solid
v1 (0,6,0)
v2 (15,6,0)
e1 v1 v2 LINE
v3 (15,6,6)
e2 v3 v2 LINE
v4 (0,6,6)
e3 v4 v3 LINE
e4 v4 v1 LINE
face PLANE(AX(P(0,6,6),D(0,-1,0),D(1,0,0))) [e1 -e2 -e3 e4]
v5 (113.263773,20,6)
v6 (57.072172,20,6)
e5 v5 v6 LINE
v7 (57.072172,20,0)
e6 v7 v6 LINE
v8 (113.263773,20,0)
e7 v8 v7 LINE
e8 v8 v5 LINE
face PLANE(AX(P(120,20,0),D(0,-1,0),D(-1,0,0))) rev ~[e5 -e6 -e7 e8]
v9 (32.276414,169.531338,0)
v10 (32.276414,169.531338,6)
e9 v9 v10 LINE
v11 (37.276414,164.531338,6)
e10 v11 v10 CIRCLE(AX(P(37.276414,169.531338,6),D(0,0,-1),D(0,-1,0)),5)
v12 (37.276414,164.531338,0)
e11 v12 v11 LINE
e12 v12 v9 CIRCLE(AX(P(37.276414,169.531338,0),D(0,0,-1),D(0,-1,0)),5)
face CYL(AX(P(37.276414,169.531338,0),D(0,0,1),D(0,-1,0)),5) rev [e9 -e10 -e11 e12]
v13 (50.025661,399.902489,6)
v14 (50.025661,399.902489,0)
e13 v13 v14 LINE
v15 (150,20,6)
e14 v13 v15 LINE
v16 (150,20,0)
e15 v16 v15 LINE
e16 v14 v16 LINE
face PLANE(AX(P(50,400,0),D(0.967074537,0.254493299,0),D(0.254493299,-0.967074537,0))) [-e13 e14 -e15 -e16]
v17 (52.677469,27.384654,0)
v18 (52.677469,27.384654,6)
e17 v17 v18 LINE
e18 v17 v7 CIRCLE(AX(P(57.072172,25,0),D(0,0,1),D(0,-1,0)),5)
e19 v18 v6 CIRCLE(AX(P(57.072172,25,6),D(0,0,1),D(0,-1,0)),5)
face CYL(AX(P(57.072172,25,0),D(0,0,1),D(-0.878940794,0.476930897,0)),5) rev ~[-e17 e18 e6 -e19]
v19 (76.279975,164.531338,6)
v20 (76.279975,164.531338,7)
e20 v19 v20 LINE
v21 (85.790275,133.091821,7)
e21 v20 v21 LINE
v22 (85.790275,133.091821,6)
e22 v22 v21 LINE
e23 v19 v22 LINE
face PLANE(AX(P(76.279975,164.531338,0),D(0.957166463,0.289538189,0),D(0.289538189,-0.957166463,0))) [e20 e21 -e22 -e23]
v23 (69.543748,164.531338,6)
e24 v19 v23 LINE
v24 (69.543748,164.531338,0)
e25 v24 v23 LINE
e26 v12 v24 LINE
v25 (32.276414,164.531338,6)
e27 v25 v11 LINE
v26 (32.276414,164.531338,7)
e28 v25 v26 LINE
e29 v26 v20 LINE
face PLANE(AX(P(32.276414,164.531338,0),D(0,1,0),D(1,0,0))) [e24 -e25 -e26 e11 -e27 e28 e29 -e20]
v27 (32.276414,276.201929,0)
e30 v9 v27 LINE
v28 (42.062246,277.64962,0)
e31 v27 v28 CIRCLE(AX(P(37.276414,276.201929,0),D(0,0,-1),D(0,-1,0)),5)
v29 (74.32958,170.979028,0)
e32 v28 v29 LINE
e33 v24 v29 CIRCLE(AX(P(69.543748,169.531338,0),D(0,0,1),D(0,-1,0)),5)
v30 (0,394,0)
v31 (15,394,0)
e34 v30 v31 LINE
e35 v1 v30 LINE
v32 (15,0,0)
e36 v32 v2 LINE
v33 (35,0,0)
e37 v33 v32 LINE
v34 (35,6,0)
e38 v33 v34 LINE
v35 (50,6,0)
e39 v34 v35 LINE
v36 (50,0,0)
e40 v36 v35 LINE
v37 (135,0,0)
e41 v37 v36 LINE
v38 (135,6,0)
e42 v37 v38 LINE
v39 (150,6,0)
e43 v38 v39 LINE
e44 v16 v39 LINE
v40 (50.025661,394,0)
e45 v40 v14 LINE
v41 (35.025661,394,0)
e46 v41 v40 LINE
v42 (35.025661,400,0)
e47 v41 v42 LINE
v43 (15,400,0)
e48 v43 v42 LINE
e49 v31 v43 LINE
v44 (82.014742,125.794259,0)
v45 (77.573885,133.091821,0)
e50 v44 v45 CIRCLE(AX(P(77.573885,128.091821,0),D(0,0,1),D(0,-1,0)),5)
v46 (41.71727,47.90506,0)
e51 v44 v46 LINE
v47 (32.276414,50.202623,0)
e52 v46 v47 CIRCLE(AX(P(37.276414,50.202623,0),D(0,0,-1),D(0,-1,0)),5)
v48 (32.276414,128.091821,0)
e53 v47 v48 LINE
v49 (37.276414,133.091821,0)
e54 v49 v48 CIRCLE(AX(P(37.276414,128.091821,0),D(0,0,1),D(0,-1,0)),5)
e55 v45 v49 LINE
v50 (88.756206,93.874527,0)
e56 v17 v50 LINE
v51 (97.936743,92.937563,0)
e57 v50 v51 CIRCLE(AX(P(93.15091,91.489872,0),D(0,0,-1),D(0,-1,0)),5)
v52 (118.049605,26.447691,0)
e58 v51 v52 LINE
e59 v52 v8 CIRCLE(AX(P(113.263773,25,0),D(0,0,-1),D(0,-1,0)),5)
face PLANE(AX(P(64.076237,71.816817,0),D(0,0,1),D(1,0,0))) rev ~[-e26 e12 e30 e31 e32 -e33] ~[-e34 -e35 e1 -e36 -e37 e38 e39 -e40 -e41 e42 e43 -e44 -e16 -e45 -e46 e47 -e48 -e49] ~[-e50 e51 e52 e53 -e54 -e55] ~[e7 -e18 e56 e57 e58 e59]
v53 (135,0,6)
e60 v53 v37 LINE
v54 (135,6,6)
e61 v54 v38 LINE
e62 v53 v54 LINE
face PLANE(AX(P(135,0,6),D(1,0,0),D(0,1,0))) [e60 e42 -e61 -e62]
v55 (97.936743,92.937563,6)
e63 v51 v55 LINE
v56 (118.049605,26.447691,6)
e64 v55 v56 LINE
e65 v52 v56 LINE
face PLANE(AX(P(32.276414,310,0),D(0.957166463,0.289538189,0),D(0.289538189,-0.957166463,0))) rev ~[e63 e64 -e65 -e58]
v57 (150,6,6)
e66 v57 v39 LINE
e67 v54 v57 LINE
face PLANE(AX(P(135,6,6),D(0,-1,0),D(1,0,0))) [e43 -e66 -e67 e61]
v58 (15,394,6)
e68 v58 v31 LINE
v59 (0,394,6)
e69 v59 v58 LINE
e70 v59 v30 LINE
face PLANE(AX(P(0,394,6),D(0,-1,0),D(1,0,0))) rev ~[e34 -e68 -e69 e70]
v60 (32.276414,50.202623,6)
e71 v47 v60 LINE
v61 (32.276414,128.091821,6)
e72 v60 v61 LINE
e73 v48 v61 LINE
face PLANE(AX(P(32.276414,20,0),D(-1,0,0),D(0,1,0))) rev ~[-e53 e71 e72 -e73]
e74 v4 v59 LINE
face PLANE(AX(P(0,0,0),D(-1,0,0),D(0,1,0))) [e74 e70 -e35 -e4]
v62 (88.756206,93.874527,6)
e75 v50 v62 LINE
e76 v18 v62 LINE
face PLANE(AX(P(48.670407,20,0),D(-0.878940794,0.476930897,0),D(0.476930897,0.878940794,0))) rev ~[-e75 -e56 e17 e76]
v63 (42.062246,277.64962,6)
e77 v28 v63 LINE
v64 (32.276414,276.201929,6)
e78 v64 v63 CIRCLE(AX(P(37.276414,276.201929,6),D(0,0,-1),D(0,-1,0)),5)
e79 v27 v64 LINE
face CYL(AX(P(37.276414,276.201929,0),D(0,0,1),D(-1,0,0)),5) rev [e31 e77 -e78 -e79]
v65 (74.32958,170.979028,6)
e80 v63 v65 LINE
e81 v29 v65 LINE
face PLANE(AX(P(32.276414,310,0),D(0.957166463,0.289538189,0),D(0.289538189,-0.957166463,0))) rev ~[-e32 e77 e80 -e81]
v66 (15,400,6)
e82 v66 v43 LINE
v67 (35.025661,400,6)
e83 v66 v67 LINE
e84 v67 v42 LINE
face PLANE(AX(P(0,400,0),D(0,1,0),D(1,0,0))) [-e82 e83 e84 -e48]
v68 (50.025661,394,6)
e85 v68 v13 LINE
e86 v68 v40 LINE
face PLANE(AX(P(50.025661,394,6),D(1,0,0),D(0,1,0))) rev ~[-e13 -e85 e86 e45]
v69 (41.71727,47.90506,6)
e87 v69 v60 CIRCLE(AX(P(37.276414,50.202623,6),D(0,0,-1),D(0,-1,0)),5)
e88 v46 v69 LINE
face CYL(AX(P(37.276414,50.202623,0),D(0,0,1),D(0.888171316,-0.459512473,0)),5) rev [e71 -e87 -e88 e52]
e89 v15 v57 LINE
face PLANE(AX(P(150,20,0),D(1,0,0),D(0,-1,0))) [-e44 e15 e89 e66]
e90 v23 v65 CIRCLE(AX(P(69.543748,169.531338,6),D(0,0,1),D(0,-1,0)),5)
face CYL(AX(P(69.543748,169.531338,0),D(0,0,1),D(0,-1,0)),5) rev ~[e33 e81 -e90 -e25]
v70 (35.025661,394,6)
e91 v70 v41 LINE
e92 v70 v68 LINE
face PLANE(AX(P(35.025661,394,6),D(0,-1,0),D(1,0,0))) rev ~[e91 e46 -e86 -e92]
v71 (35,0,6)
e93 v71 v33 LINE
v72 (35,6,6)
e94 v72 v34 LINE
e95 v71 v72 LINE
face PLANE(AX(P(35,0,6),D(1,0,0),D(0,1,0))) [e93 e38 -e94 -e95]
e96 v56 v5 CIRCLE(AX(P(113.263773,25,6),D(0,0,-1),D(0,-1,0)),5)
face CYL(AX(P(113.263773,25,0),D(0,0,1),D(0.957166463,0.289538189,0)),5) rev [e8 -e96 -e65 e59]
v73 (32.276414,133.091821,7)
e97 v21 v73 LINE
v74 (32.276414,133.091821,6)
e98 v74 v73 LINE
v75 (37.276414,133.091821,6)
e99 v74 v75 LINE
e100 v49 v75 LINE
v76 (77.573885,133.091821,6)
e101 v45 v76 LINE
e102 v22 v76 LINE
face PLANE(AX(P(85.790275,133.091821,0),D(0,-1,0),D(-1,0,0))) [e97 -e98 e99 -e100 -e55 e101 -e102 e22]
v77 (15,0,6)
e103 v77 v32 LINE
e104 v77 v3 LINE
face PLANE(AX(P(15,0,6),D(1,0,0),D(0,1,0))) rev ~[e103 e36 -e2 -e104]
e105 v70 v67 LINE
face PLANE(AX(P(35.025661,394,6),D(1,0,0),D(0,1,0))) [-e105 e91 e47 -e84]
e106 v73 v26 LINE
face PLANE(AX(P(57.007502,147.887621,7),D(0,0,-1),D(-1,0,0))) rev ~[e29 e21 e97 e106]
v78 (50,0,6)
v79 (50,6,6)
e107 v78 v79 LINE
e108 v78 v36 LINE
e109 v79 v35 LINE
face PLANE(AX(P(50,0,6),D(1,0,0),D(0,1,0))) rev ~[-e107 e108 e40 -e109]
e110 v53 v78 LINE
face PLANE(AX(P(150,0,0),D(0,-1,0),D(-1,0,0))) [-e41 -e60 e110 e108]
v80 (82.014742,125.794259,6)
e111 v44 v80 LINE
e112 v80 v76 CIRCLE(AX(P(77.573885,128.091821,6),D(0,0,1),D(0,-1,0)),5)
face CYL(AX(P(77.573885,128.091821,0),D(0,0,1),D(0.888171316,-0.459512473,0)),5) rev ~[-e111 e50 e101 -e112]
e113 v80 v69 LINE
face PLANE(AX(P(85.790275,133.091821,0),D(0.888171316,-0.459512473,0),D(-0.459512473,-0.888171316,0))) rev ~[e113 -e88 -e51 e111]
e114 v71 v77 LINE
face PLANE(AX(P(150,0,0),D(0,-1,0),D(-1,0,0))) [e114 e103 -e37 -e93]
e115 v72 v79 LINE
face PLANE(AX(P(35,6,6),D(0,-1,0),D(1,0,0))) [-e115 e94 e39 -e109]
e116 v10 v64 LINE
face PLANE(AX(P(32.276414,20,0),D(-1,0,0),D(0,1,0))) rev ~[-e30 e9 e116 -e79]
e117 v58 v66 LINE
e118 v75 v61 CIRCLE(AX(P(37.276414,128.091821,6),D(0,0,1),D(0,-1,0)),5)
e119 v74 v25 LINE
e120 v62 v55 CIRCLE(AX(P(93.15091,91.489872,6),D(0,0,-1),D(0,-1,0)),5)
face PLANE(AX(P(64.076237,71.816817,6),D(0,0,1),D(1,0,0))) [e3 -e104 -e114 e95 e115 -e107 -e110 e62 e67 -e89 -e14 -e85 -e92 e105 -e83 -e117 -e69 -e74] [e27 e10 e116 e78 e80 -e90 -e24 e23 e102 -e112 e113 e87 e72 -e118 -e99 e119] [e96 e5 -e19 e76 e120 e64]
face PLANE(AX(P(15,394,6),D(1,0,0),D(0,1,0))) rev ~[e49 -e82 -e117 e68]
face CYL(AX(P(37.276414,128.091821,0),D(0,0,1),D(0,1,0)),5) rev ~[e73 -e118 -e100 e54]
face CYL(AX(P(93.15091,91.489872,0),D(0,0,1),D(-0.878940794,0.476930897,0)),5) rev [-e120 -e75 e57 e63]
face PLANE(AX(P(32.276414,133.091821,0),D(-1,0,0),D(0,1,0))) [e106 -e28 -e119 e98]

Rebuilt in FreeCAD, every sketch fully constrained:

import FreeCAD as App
import Part
import Sketcher
from FreeCAD import Vector
Q = App.Units.Quantity


def edges_at(feature, points):
    """Names of the edges that pass closest to the given points."""
    edges = feature.Shape.Edges
    near = lambda p: min(range(len(edges)), key=lambda i: edges[i].distToShape(Part.Vertex(*p))[0])
    return sorted({f"Edge{near(p) + 1}" for p in points})

doc = App.newDocument("Part")
params = doc.addObject("Spreadsheet::Sheet", "Params")
for row, (alias, value) in enumerate([
    ("sketch1_width", "150 mm"),
    ("sketch1_width2", "50 mm"),
    ("sketch1_height", "400 mm"),
    ("sketch1_height2", "20 mm"),
    ("pad1_length", "6 mm"),
    ("sketch2_height", "290 mm"),
    ("fillet_radius", "5 mm"),
    ("pad2_length", "7 mm"),
    ("pad3_length", "6 mm"),
    ("fillet2_radius", "5 mm"),
    ("sketch5_width", "15 mm"),
    ("sketch5_height", "6 mm"),
    ("sketch6_width", "15 mm"),
    ("sketch6_height", "6 mm"),
], start=1):
    params.set(f"A{row}", alias)
    params.set(f"B{row}", "=" + value)
    params.setAlias(f"B{row}", alias)

body = doc.addObject("PartDesign::Body", "Body")

# Sketch on XY plane
sketch1 = body.newObject("Sketcher::SketchObject", "Sketch")
sketch1.AttachmentSupport = (doc.getObject("XY_Plane"), [""])
sketch1.MapMode = "FlatFace"
sketch1.addGeometry(Part.LineSegment(Vector(0, 400, 0), Vector(0, 0, 0)), False)
sketch1.addGeometry(Part.LineSegment(Vector(0, 0, 0), Vector(150, 0, 0)), False)
sketch1.addGeometry(Part.LineSegment(Vector(150, 0, 0), Vector(150, 20, 0)), False)
sketch1.addGeometry(Part.LineSegment(Vector(150, 20, 0), Vector(50, 400, 0)), False)
sketch1.addGeometry(Part.LineSegment(Vector(50, 400, 0), Vector(0, 400, 0)), False)
sketch1.addConstraint(Sketcher.Constraint("Coincident", 0, 2, 1, 1))
sketch1.addConstraint(Sketcher.Constraint("Coincident", 1, 2, 2, 1))
sketch1.addConstraint(Sketcher.Constraint("Coincident", 2, 2, 3, 1))
sketch1.addConstraint(Sketcher.Constraint("Coincident", 3, 2, 4, 1))
sketch1.addConstraint(Sketcher.Constraint("Coincident", 4, 2, 0, 1))
sketch1.addConstraint(Sketcher.Constraint("Vertical", 0))
sketch1.addConstraint(Sketcher.Constraint("Horizontal", 1))
sketch1.addConstraint(Sketcher.Constraint("Vertical", 2))
sketch1.addConstraint(Sketcher.Constraint("Horizontal", 4))
sketch1.addConstraint(Sketcher.Constraint("Coincident", 0, 2, -1, 1))
sketch1.addConstraint(Sketcher.Constraint("DistanceX", 1, 1, 1, 2, Q("150 mm")))
sketch1.addConstraint(Sketcher.Constraint("DistanceX", 4, 2, 4, 1, Q("50 mm")))
sketch1.addConstraint(Sketcher.Constraint("DistanceY", 0, 2, 0, 1, Q("400 mm")))
sketch1.addConstraint(Sketcher.Constraint("DistanceY", 2, 1, 2, 2, Q("20 mm")))
sketch1.setExpression("Constraints[10]", "Params.sketch1_width")
sketch1.setExpression("Constraints[11]", "Params.sketch1_width2")
sketch1.setExpression("Constraints[12]", "Params.sketch1_height")
sketch1.setExpression("Constraints[13]", "Params.sketch1_height2")
pad1 = body.newObject("PartDesign::Pad", "Pad")
pad1.Profile = sketch1
pad1.setExpression("Length", "Params.pad1_length")

# Sketch on XY plane
sketch2 = body.newObject("Sketcher::SketchObject", "Sketch001")
sketch2.AttachmentSupport = (doc.getObject("XY_Plane"), [""])
sketch2.MapMode = "FlatFace"
sketch2.addGeometry(Part.LineSegment(Vector(32, 20, 0), Vector(32, 310, 0)), False)
sketch2.addGeometry(Part.LineSegment(Vector(32, 310, 0), Vector(120, 20, 0)), False)
sketch2.addGeometry(Part.LineSegment(Vector(120, 20, 0), Vector(32, 20, 0)), False)
sketch2.addConstraint(Sketcher.Constraint("Coincident", 0, 2, 1, 1))
sketch2.addConstraint(Sketcher.Constraint("Coincident", 1, 2, 2, 1))
sketch2.addConstraint(Sketcher.Constraint("Coincident", 2, 2, 0, 1))
sketch2.addConstraint(Sketcher.Constraint("Vertical", 0))
sketch2.addConstraint(Sketcher.Constraint("Horizontal", 2))
sketch2.addConstraint(Sketcher.Constraint("DistanceY", 0, 1, 0, 2, Q("290 mm")))
sketch2.addConstraint(Sketcher.Constraint("DistanceY", -1, 1, 0, 2, Q("310 mm")))
sketch2.addConstraint(Sketcher.Constraint("DistanceX", -1, 1, 1, 2, Q("120 mm")))
sketch2.addConstraint(Sketcher.Constraint("DistanceX", 2, 2, 2, 1, Q("87.723586 mm")))
sketch2.setExpression("Constraints[5]", "Params.sketch2_height")
pocket1 = body.newObject("PartDesign::Pocket", "Pocket")
pocket1.Profile = sketch2
pocket1.Type = "ThroughAll"
pocket1.Reversed = True
doc.recompute()

fillet = body.newObject("PartDesign::Fillet", "Fillet")
fillet.Base = (pocket1, edges_at(pocket1, [(32.276, 20, 3), (120, 20, 3), (32.276, 310, 3)]))
fillet.setExpression("Radius", "Params.fillet_radius")

# Sketch on XY plane
sketch3 = body.newObject("Sketcher::SketchObject", "Sketch002")
sketch3.AttachmentSupport = (doc.getObject("XY_Plane"), [""])
sketch3.MapMode = "FlatFace"
sketch3.addGeometry(Part.LineSegment(Vector(86, 133, 0), Vector(32, 133, 0)), False)
sketch3.addGeometry(Part.LineSegment(Vector(32, 133, 0), Vector(32, 165, 0)), False)
sketch3.addGeometry(Part.LineSegment(Vector(32, 165, 0), Vector(76, 165, 0)), False)
sketch3.addGeometry(Part.LineSegment(Vector(76, 165, 0), Vector(86, 133, 0)), False)
sketch3.addConstraint(Sketcher.Constraint("Coincident", 0, 2, 1, 1))
sketch3.addConstraint(Sketcher.Constraint("Coincident", 1, 2, 2, 1))
sketch3.addConstraint(Sketcher.Constraint("Coincident", 2, 2, 3, 1))
sketch3.addConstraint(Sketcher.Constraint("Coincident", 3, 2, 0, 1))
sketch3.addConstraint(Sketcher.Constraint("Horizontal", 0))
sketch3.addConstraint(Sketcher.Constraint("Vertical", 1))
sketch3.addConstraint(Sketcher.Constraint("Horizontal", 2))
sketch3.addConstraint(Sketcher.Constraint("DistanceX", 0, 2, 0, 1, Q("53.513862 mm")))
sketch3.addConstraint(Sketcher.Constraint("DistanceX", 2, 1, 2, 2, Q("44.003561 mm")))
sketch3.addConstraint(Sketcher.Constraint("DistanceY", 1, 1, 1, 2, Q("31.439517 mm")))
sketch3.addConstraint(Sketcher.Constraint("DistanceY", -1, 1, 0, 2, Q("133.091821 mm")))
sketch3.addConstraint(Sketcher.Constraint("DistanceX", -1, 1, 0, 2, Q("32.276414 mm")))
pad2 = body.newObject("PartDesign::Pad", "Pad001")
pad2.Profile = sketch3
pad2.setExpression("Length", "Params.pad2_length")

# Sketch on XY plane
sketch4 = body.newObject("Sketcher::SketchObject", "Sketch003")
sketch4.AttachmentSupport = (doc.getObject("XY_Plane"), [""])
sketch4.MapMode = "FlatFace"
sketch4.addGeometry(Part.LineSegment(Vector(32, 30, 0), Vector(86, 133, 0)), False)
sketch4.addGeometry(Part.LineSegment(Vector(86, 133, 0), Vector(94, 104, 0)), False)
sketch4.addGeometry(Part.LineSegment(Vector(94, 104, 0), Vector(49, 20, 0)), False)
sketch4.addGeometry(Part.LineSegment(Vector(49, 20, 0), Vector(28, 20, 0)), False)
sketch4.addGeometry(Part.LineSegment(Vector(28, 20, 0), Vector(32, 30, 0)), False)
sketch4.addConstraint(Sketcher.Constraint("Coincident", 0, 2, 1, 1))
sketch4.addConstraint(Sketcher.Constraint("Coincident", 1, 2, 2, 1))
sketch4.addConstraint(Sketcher.Constraint("Coincident", 2, 2, 3, 1))
sketch4.addConstraint(Sketcher.Constraint("Coincident", 3, 2, 4, 1))
sketch4.addConstraint(Sketcher.Constraint("Coincident", 4, 2, 0, 1))
sketch4.addConstraint(Sketcher.Constraint("Horizontal", 3))
sketch4.addConstraint(Sketcher.Constraint("DistanceY", -1, 1, 2, 2, Q("20 mm")))
sketch4.addConstraint(Sketcher.Constraint("DistanceX", 3, 2, 3, 1, Q("21.075692 mm")))
sketch4.addConstraint(Sketcher.Constraint("DistanceX", 3, 2, 4, 2, Q("4.681699 mm")))
sketch4.addConstraint(Sketcher.Constraint("Distance", 0, Q("116.457909 mm")))
sketch4.addConstraint(Sketcher.Constraint("Distance", 2, Q("96.027191 mm")))
sketch4.addConstraint(Sketcher.Constraint("DistanceY", -1, 1, 0, 2, Q("133.091821 mm")))
sketch4.addConstraint(Sketcher.Constraint("DistanceX", -1, 1, 1, 2, Q("94.468741 mm")))
sketch4.addConstraint(Sketcher.Constraint("DistanceX", 2, 2, 0, 2, Q("37.119869 mm")))
sketch4.addConstraint(Sketcher.Constraint("DistanceY", 4, 2, 1, 2, Q("74.744969 mm")))
pad3 = body.newObject("PartDesign::Pad", "Pad002")
pad3.Profile = sketch4
pad3.setExpression("Length", "Params.pad3_length")
doc.recompute()

fillet2 = body.newObject("PartDesign::Fillet", "Fillet001")
fillet2.Base = (pad3, edges_at(pad3, [
    (32.276, 133.092, 3),
    (32.276, 164.531, 3),
    (85.79, 133.092, 3),
    (76.28, 164.531, 3),
    (94.469, 104.402, 3),
    (32.276, 29.657, 3),
    (48.67, 20, 3),
]))
fillet2.setExpression("Radius", "Params.fillet2_radius")

# Sketch on XY plane
sketch5 = body.newObject("Sketcher::SketchObject", "Sketch004")
sketch5.AttachmentSupport = (doc.getObject("XY_Plane"), [""])
sketch5.MapMode = "FlatFace"
sketch5.AttachmentOffset = App.Placement(Vector(0, 0, 6), App.Rotation())
sketch5.addGeometry(Part.LineSegment(Vector(0, 400, 0), Vector(0, 394, 0)), False)
sketch5.addGeometry(Part.LineSegment(Vector(0, 394, 0), Vector(15, 394, 0)), False)
sketch5.addGeometry(Part.LineSegment(Vector(15, 394, 0), Vector(15, 400, 0)), False)
sketch5.addGeometry(Part.LineSegment(Vector(15, 400, 0), Vector(0, 400, 0)), False)
sketch5.addGeometry(Part.LineSegment(Vector(35, 400, 0), Vector(35, 394, 0)), False)
sketch5.addGeometry(Part.LineSegment(Vector(35, 394, 0), Vector(50, 394, 0)), False)
sketch5.addGeometry(Part.LineSegment(Vector(50, 394, 0), Vector(50, 400, 0)), False)
sketch5.addGeometry(Part.LineSegment(Vector(50, 400, 0), Vector(35, 400, 0)), False)
sketch5.addConstraint(Sketcher.Constraint("Coincident", 0, 2, 1, 1))
sketch5.addConstraint(Sketcher.Constraint("Coincident", 1, 2, 2, 1))
sketch5.addConstraint(Sketcher.Constraint("Coincident", 2, 2, 3, 1))
sketch5.addConstraint(Sketcher.Constraint("Coincident", 3, 2, 0, 1))
sketch5.addConstraint(Sketcher.Constraint("Coincident", 4, 2, 5, 1))
sketch5.addConstraint(Sketcher.Constraint("Coincident", 5, 2, 6, 1))
sketch5.addConstraint(Sketcher.Constraint("Coincident", 6, 2, 7, 1))
sketch5.addConstraint(Sketcher.Constraint("Coincident", 7, 2, 4, 1))
sketch5.addConstraint(Sketcher.Constraint("Vertical", 0))
sketch5.addConstraint(Sketcher.Constraint("Horizontal", 1))
sketch5.addConstraint(Sketcher.Constraint("Vertical", 2))
sketch5.addConstraint(Sketcher.Constraint("Horizontal", 3))
sketch5.addConstraint(Sketcher.Constraint("Vertical", 4))
sketch5.addConstraint(Sketcher.Constraint("Horizontal", 5))
sketch5.addConstraint(Sketcher.Constraint("Vertical", 6))
sketch5.addConstraint(Sketcher.Constraint("Horizontal", 7))
sketch5.addConstraint(Sketcher.Constraint("PointOnObject", 0, 2, -2))
sketch5.addConstraint(Sketcher.Constraint("Horizontal", 1, 2, 4, 2))
sketch5.addConstraint(Sketcher.Constraint("Horizontal", 3, 2, 6, 2))
sketch5.addConstraint(Sketcher.Constraint("Equal", 3, 5))
sketch5.addConstraint(Sketcher.Constraint("DistanceX", 1, 1, 1, 2, Q("15 mm")))
sketch5.addConstraint(Sketcher.Constraint("DistanceY", 0, 2, 0, 1, Q("6 mm")))
sketch5.addConstraint(Sketcher.Constraint("DistanceY", -1, 1, 0, 2, Q("394 mm")))
sketch5.addConstraint(Sketcher.Constraint("DistanceX", -1, 1, 4, 2, Q("35.025661 mm")))
sketch5.setExpression("Constraints[20]", "Params.sketch5_width")
sketch5.setExpression("Constraints[21]", "Params.sketch5_height")
pocket2 = body.newObject("PartDesign::Pocket", "Pocket001")
pocket2.Profile = sketch5
pocket2.Type = "ThroughAll"

# Sketch on XY plane
sketch6 = body.newObject("Sketcher::SketchObject", "Sketch005")
sketch6.AttachmentSupport = (doc.getObject("XY_Plane"), [""])
sketch6.MapMode = "FlatFace"
sketch6.AttachmentOffset = App.Placement(Vector(0, 0, 6), App.Rotation())
sketch6.addGeometry(Part.LineSegment(Vector(0, 6, 0), Vector(0, 0, 0)), False)
sketch6.addGeometry(Part.LineSegment(Vector(0, 0, 0), Vector(15, 0, 0)), False)
sketch6.addGeometry(Part.LineSegment(Vector(15, 0, 0), Vector(15, 6, 0)), False)
sketch6.addGeometry(Part.LineSegment(Vector(15, 6, 0), Vector(0, 6, 0)), False)
sketch6.addGeometry(Part.LineSegment(Vector(35, 6, 0), Vector(35, 0, 0)), False)
sketch6.addGeometry(Part.LineSegment(Vector(35, 0, 0), Vector(50, 0, 0)), False)
sketch6.addGeometry(Part.LineSegment(Vector(50, 0, 0), Vector(50, 6, 0)), False)
sketch6.addGeometry(Part.LineSegment(Vector(50, 6, 0), Vector(35, 6, 0)), False)
sketch6.addGeometry(Part.LineSegment(Vector(135, 6, 0), Vector(135, 0, 0)), False)
sketch6.addGeometry(Part.LineSegment(Vector(135, 0, 0), Vector(150, 0, 0)), False)
sketch6.addGeometry(Part.LineSegment(Vector(150, 0, 0), Vector(150, 6, 0)), False)
sketch6.addGeometry(Part.LineSegment(Vector(150, 6, 0), Vector(135, 6, 0)), False)
sketch6.addConstraint(Sketcher.Constraint("Coincident", 0, 2, 1, 1))
sketch6.addConstraint(Sketcher.Constraint("Coincident", 1, 2, 2, 1))
sketch6.addConstraint(Sketcher.Constraint("Coincident", 2, 2, 3, 1))
sketch6.addConstraint(Sketcher.Constraint("Coincident", 3, 2, 0, 1))
sketch6.addConstraint(Sketcher.Constraint("Coincident", 4, 2, 5, 1))
sketch6.addConstraint(Sketcher.Constraint("Coincident", 5, 2, 6, 1))
sketch6.addConstraint(Sketcher.Constraint("Coincident", 6, 2, 7, 1))
sketch6.addConstraint(Sketcher.Constraint("Coincident", 7, 2, 4, 1))
sketch6.addConstraint(Sketcher.Constraint("Coincident", 8, 2, 9, 1))
sketch6.addConstraint(Sketcher.Constraint("Coincident", 9, 2, 10, 1))
sketch6.addConstraint(Sketcher.Constraint("Coincident", 10, 2, 11, 1))
sketch6.addConstraint(Sketcher.Constraint("Coincident", 11, 2, 8, 1))
sketch6.addConstraint(Sketcher.Constraint("Vertical", 0))
sketch6.addConstraint(Sketcher.Constraint("Horizontal", 1))
sketch6.addConstraint(Sketcher.Constraint("Vertical", 2))
sketch6.addConstraint(Sketcher.Constraint("Horizontal", 3))
sketch6.addConstraint(Sketcher.Constraint("Vertical", 4))
sketch6.addConstraint(Sketcher.Constraint("Horizontal", 5))
sketch6.addConstraint(Sketcher.Constraint("Vertical", 6))
sketch6.addConstraint(Sketcher.Constraint("Horizontal", 7))
sketch6.addConstraint(Sketcher.Constraint("Vertical", 8))
sketch6.addConstraint(Sketcher.Constraint("Horizontal", 9))
sketch6.addConstraint(Sketcher.Constraint("Vertical", 10))
sketch6.addConstraint(Sketcher.Constraint("Horizontal", 11))
sketch6.addConstraint(Sketcher.Constraint("Coincident", 0, 2, -1, 1))
sketch6.addConstraint(Sketcher.Constraint("PointOnObject", 4, 2, -1))
sketch6.addConstraint(Sketcher.Constraint("PointOnObject", 8, 2, -1))
sketch6.addConstraint(Sketcher.Constraint("Horizontal", 3, 2, 6, 2))
sketch6.addConstraint(Sketcher.Constraint("Horizontal", 7, 2, 10, 2))
sketch6.addConstraint(Sketcher.Constraint("Equal", 3, 5))
sketch6.addConstraint(Sketcher.Constraint("Equal", 7, 9))
sketch6.addConstraint(Sketcher.Constraint("DistanceX", 1, 1, 1, 2, Q("15 mm")))
sketch6.addConstraint(Sketcher.Constraint("DistanceY", 0, 2, 0, 1, Q("6 mm")))
sketch6.addConstraint(Sketcher.Constraint("DistanceX", -1, 1, 4, 2, Q("35 mm")))
sketch6.addConstraint(Sketcher.Constraint("DistanceX", -1, 1, 8, 2, Q("135 mm")))
sketch6.setExpression("Constraints[31]", "Params.sketch6_width")
sketch6.setExpression("Constraints[32]", "Params.sketch6_height")
pocket3 = body.newObject("PartDesign::Pocket", "Pocket002")
pocket3.Profile = sketch6
pocket3.Type = "ThroughAll"

doc.recompute()
